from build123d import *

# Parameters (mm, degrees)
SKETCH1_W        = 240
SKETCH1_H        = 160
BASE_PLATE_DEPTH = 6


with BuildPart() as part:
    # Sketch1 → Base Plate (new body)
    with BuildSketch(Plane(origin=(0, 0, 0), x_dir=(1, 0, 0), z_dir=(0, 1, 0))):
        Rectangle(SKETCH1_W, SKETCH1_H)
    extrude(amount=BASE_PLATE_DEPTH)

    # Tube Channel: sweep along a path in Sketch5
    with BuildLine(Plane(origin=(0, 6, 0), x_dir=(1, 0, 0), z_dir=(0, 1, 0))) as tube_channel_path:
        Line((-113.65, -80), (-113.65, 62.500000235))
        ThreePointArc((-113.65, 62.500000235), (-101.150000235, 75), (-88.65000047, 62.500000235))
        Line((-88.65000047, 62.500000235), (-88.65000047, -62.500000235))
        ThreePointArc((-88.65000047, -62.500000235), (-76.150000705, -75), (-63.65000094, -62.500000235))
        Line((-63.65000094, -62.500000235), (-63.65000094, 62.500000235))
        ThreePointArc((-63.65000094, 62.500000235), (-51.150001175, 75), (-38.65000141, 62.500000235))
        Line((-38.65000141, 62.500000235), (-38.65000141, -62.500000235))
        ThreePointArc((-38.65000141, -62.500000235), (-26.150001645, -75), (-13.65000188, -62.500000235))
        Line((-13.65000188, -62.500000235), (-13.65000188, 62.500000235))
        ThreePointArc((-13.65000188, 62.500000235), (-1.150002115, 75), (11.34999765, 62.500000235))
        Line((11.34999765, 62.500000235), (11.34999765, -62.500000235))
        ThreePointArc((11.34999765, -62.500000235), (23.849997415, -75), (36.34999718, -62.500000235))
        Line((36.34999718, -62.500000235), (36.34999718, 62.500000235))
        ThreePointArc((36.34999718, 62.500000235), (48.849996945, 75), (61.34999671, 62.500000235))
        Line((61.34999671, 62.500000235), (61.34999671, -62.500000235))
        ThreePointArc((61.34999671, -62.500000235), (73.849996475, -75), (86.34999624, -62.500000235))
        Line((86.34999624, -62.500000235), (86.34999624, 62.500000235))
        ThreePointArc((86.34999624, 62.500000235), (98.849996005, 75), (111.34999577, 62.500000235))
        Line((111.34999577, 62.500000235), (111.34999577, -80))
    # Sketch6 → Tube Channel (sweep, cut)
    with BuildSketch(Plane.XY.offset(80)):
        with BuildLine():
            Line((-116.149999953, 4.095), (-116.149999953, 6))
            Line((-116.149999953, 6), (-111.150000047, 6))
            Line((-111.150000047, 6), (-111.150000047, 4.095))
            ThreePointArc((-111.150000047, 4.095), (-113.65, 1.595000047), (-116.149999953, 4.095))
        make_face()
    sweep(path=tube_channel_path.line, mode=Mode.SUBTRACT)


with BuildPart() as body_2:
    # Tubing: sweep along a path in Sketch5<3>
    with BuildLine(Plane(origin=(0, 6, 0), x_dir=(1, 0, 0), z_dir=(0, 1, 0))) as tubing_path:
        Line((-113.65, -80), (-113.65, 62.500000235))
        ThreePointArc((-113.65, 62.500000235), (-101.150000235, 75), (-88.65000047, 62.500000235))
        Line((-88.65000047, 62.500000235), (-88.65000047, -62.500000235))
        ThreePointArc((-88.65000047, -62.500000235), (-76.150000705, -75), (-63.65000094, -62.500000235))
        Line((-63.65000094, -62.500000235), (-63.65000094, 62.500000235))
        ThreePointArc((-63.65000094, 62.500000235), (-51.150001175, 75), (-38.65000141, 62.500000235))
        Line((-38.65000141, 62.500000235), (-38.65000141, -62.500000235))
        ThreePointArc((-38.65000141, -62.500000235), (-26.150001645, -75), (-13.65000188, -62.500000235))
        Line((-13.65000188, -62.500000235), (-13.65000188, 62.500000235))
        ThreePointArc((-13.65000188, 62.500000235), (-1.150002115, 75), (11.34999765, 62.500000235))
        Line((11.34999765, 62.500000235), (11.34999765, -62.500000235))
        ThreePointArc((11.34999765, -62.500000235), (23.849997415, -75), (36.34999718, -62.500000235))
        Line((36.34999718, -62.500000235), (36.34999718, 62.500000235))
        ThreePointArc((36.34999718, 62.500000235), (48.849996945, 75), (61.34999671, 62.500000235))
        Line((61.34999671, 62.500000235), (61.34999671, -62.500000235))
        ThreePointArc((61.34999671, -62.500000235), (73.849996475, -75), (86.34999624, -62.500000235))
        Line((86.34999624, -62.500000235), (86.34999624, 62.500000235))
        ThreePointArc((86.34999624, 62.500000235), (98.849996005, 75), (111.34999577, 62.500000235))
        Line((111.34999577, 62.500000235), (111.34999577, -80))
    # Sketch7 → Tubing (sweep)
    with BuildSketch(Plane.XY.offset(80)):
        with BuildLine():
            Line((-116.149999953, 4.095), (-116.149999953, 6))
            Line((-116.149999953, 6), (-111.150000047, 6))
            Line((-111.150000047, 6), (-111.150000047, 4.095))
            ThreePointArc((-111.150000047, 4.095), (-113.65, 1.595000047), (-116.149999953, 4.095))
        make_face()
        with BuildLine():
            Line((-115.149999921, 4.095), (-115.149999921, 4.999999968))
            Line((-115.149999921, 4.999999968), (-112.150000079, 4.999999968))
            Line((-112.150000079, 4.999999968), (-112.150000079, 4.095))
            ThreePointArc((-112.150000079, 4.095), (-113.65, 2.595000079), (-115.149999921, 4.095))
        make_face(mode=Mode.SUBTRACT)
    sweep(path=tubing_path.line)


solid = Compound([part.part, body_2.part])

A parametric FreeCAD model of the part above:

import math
import FreeCAD as App
import Part
import Sketcher

doc = App.newDocument("Part")
params = doc.addObject("Spreadsheet::Sheet", "Params")
for row, (alias, value) in enumerate([
    ("sketch1_width", "240 mm"),
    ("sketch1_height", "160 mm"),
    ("pad1_length", "6 mm"),
    ("sketch2_radius", "2.5 mm"),
    ("sketch3_radius", "12.5 mm"),
    ("sketch3_height", "125 mm"),
    ("sketch3_height2", "142.5 mm"),
    ("sketch4_radius", "2.5 mm"),
    ("sketch4_radius2", "1.5 mm"),
    ("sketch5_radius", "12.5 mm"),
    ("sketch5_height", "125 mm"),
    ("sketch5_height2", "142.5 mm"),
], start=1):
    params.set(f"A{row}", alias)
    params.set(f"B{row}", "=" + value)
    params.setAlias(f"B{row}", alias)

body = doc.addObject("PartDesign::Body", "Body")

# Sketch on XZ plane
sketch1 = doc.addObject("Sketcher::SketchObject", "Sketch")
body.addObject(sketch1)
sketch1.AttachmentSupport = (doc.XZ_Plane, [""])
sketch1.MapMode = "FlatFace"
sketch1.addGeometry(Part.LineSegment(App.Vector(-120, -80, 0), App.Vector(-120, 80, 0)), False)
sketch1.addGeometry(Part.LineSegment(App.Vector(-120, 80, 0), App.Vector(120, 80, 0)), False)
sketch1.addGeometry(Part.LineSegment(App.Vector(120, 80, 0), App.Vector(120, -80, 0)), False)
sketch1.addGeometry(Part.LineSegment(App.Vector(120, -80, 0), App.Vector(-120, -80, 0)), False)
sketch1.addConstraint(Sketcher.Constraint("Coincident", 0, 2, 1, 1))
sketch1.addConstraint(Sketcher.Constraint("Coincident", 1, 2, 2, 1))
sketch1.addConstraint(Sketcher.Constraint("Coincident", 2, 2, 3, 1))
sketch1.addConstraint(Sketcher.Constraint("Coincident", 3, 2, 0, 1))
sketch1.addConstraint(Sketcher.Constraint("Vertical", 0))
sketch1.addConstraint(Sketcher.Constraint("Horizontal", 1))
sketch1.addConstraint(Sketcher.Constraint("Vertical", 2))
sketch1.addConstraint(Sketcher.Constraint("Horizontal", 3))
sketch1.addConstraint(Sketcher.Constraint("Symmetric", 0, 2, 2, 2, -1, 1))
sketch1.addConstraint(Sketcher.Constraint("DistanceX", 1, 1, 1, 2, 240.0))
sketch1.addConstraint(Sketcher.Constraint("DistanceY", 0, 1, 0, 2, 160.0))
sketch1.setExpression("Constraints[9]", "Params.sketch1_width")
sketch1.setExpression("Constraints[10]", "Params.sketch1_height")
pad1 = doc.addObject("PartDesign::Pad", "Pad")
body.addObject(pad1)
pad1.Profile = sketch1
pad1.setExpression("Length", "Params.pad1_length")
pad1.Reversed = True

# Sketch on XY plane
sketch2 = doc.addObject("Sketcher::SketchObject", "Sketch001")
body.addObject(sketch2)
sketch2.AttachmentSupport = (doc.XY_Plane, [""])
sketch2.MapMode = "FlatFace"
sketch2.AttachmentOffset = App.Placement(App.Vector(0, 0, 80), App.Rotation())
sketch2.addGeometry(Part.LineSegment(App.Vector(-116.15, 6, 0), App.Vector(-116.15, 4.095, 0)), False)
sketch2.addGeometry(Part.ArcOfCircle(Part.Circle(App.Vector(-113.65, 4.095, 0), App.Vector(0, 0, 1), 2.5), math.radians(180), math.radians(360)), False)
sketch2.addGeometry(Part.LineSegment(App.Vector(-111.15, 4.095, 0), App.Vector(-111.15, 6, 0)), False)
sketch2.addGeometry(Part.LineSegment(App.Vector(-111.15, 6, 0), App.Vector(-116.15, 6, 0)), False)
sketch2.addConstraint(Sketcher.Constraint("Tangent", 0, 2, 1, 1))
sketch2.addConstraint(Sketcher.Constraint("Tangent", 1, 2, 2, 1))
sketch2.addConstraint(Sketcher.Constraint("Coincident", 2, 2, 3, 1))
sketch2.addConstraint(Sketcher.Constraint("Coincident", 3, 2, 0, 1))
sketch2.addConstraint(Sketcher.Constraint("Vertical", 0))
sketch2.addConstraint(Sketcher.Constraint("Vertical", 2))
sketch2.addConstraint(Sketcher.Constraint("Horizontal", 3))
sketch2.addConstraint(Sketcher.Constraint("Radius", 1, 2.5))
sketch2.addConstraint(Sketcher.Constraint("DistanceY", -1, 1, 2, 2, 6.0))
sketch2.addConstraint(Sketcher.Constraint("DistanceY", 0, 2, 0, 1, 1.905))
sketch2.addConstraint(Sketcher.Constraint("DistanceX", 1, 3, -1, 1, 113.65))
sketch2.setExpression("Constraints[7]", "Params.sketch2_radius")

# Sketch on XZ plane
sketch3 = doc.addObject("Sketcher::SketchObject", "Sketch002")
body.addObject(sketch3)
sketch3.AttachmentSupport = (doc.XZ_Plane, [""])
sketch3.MapMode = "FlatFace"
sketch3.AttachmentOffset = App.Placement(App.Vector(0, 0, -6), App.Rotation())
sketch3.addGeometry(Part.LineSegment(App.Vector(-113.65, 80, 0), App.Vector(-113.65, -62.5, 0)), False)
sketch3.addGeometry(Part.ArcOfCircle(Part.Circle(App.Vector(-101.15, -62.5, 0), App.Vector(0, 0, 1), 12.5), math.radians(180), math.radians(360)), False)
sketch3.addGeometry(Part.LineSegment(App.Vector(-88.65, -62.5, 0), App.Vector(-88.65, 62.5, 0)), False)
sketch3.addGeometry(Part.ArcOfCircle(Part.Circle(App.Vector(-76.150001, 62.5, 0), App.Vector(0, 0, 1), 12.5), math.radians(0), math.radians(180)), False)
sketch3.addGeometry(Part.LineSegment(App.Vector(-63.650001, 62.5, 0), App.Vector(-63.650001, -62.5, 0)), False)
sketch3.addGeometry(Part.ArcOfCircle(Part.Circle(App.Vector(-51.150001, -62.5, 0), App.Vector(0, 0, 1), 12.5), math.radians(180), math.radians(360)), False)
sketch3.addGeometry(Part.LineSegment(App.Vector(-38.650001, -62.5, 0), App.Vector(-38.650001, 62.5, 0)), False)
sketch3.addGeometry(Part.ArcOfCircle(Part.Circle(App.Vector(-26.150002, 62.5, 0), App.Vector(0, 0, 1), 12.5), math.radians(0), math.radians(180)), False)
sketch3.addGeometry(Part.LineSegment(App.Vector(-13.650002, 62.5, 0), App.Vector(-13.650002, -62.5, 0)), False)
sketch3.addGeometry(Part.ArcOfCircle(Part.Circle(App.Vector(-1.150002, -62.5, 0), App.Vector(0, 0, 1), 12.5), math.radians(180), math.radians(360)), False)
sketch3.addGeometry(Part.LineSegment(App.Vector(11.349998, -62.5, 0), App.Vector(11.349998, 62.5, 0)), False)
sketch3.addGeometry(Part.ArcOfCircle(Part.Circle(App.Vector(23.849997, 62.5, 0), App.Vector(0, 0, 1), 12.5), math.radians(0), math.radians(180)), False)
sketch3.addGeometry(Part.LineSegment(App.Vector(36.349997, 62.5, 0), App.Vector(36.349997, -62.5, 0)), False)
sketch3.addGeometry(Part.ArcOfCircle(Part.Circle(App.Vector(48.849997, -62.5, 0), App.Vector(0, 0, 1), 12.5), math.radians(180), math.radians(360)), False)
sketch3.addGeometry(Part.LineSegment(App.Vector(61.349997, -62.5, 0), App.Vector(61.349997, 62.5, 0)), False)
sketch3.addGeometry(Part.ArcOfCircle(Part.Circle(App.Vector(73.849996, 62.5, 0), App.Vector(0, 0, 1), 12.5), math.radians(0), math.radians(180)), False)
sketch3.addGeometry(Part.LineSegment(App.Vector(86.349996, 62.5, 0), App.Vector(86.349996, -62.5, 0)), False)
sketch3.addGeometry(Part.ArcOfCircle(Part.Circle(App.Vector(98.849996, -62.5, 0), App.Vector(0, 0, 1), 12.5), math.radians(180), math.radians(360)), False)
sketch3.addGeometry(Part.LineSegment(App.Vector(111.349996, -62.5, 0), App.Vector(111.349996, 80, 0)), False)
sketch3.addConstraint(Sketcher.Constraint("Tangent", 0, 2, 1, 1))
sketch3.addConstraint(Sketcher.Constraint("Tangent", 1, 2, 2, 1))
sketch3.addConstraint(Sketcher.Constraint("Tangent", 2, 2, 3, 2))
sketch3.addConstraint(Sketcher.Constraint("Tangent", 3, 1, 4, 1))
sketch3.addConstraint(Sketcher.Constraint("Tangent", 4, 2, 5, 1))
sketch3.addConstraint(Sketcher.Constraint("Tangent", 5, 2, 6, 1))
sketch3.addConstraint(Sketcher.Constraint("Tangent", 6, 2, 7, 2))
sketch3.addConstraint(Sketcher.Constraint("Tangent", 7, 1, 8, 1))
sketch3.addConstraint(Sketcher.Constraint("Tangent", 8, 2, 9, 1))
sketch3.addConstraint(Sketcher.Constraint("Tangent", 9, 2, 10, 1))
sketch3.addConstraint(Sketcher.Constraint("Tangent", 10, 2, 11, 2))
sketch3.addConstraint(Sketcher.Constraint("Tangent", 11, 1, 12, 1))
sketch3.addConstraint(Sketcher.Constraint("Tangent", 12, 2, 13, 1))
sketch3.addConstraint(Sketcher.Constraint("Tangent", 13, 2, 14, 1))
sketch3.addConstraint(Sketcher.Constraint("Tangent", 14, 2, 15, 2))
sketch3.addConstraint(Sketcher.Constraint("Tangent", 15, 1, 16, 1))
sketch3.addConstraint(Sketcher.Constraint("Tangent", 16, 2, 17, 1))
sketch3.addConstraint(Sketcher.Constraint("Tangent", 17, 2, 18, 1))
sketch3.addConstraint(Sketcher.Constraint("Vertical", 0))
sketch3.addConstraint(Sketcher.Constraint("Vertical", 2))
sketch3.addConstraint(Sketcher.Constraint("Vertical", 4))
sketch3.addConstraint(Sketcher.Constraint("Vertical", 6))
sketch3.addConstraint(Sketcher.Constraint("Vertical", 8))
sketch3.addConstraint(Sketcher.Constraint("Vertical", 10))
sketch3.addConstraint(Sketcher.Constraint("Vertical", 12))
sketch3.addConstraint(Sketcher.Constraint("Vertical", 14))
sketch3.addConstraint(Sketcher.Constraint("Vertical", 16))
sketch3.addConstraint(Sketcher.Constraint("Vertical", 18))
sketch3.addConstraint(Sketcher.Constraint("Equal", 1, 3))
sketch3.addConstraint(Sketcher.Constraint("Equal", 3, 5))
sketch3.addConstraint(Sketcher.Constraint("Equal", 5, 7))
sketch3.addConstraint(Sketcher.Constraint("Equal", 7, 9))
sketch3.addConstraint(Sketcher.Constraint("Equal", 9, 11))
sketch3.addConstraint(Sketcher.Constraint("Equal", 11, 13))
sketch3.addConstraint(Sketcher.Constraint("Equal", 13, 15))
sketch3.addConstraint(Sketcher.Constraint("Equal", 15, 17))
sketch3.addConstraint(Sketcher.Constraint("Horizontal", 1, 3, 5, 3))
sketch3.addConstraint(Sketcher.Constraint("Horizontal", 3, 3, 7, 3))
sketch3.addConstraint(Sketcher.Constraint("Horizontal", 5, 3, 9, 3))
sketch3.addConstraint(Sketcher.Constraint("Horizontal", 7, 3, 11, 3))
sketch3.addConstraint(Sketcher.Constraint("Horizontal", 9, 3, 13, 3))
sketch3.addConstraint(Sketcher.Constraint("Horizontal", 11, 3, 15, 3))
sketch3.addConstraint(Sketcher.Constraint("Horizontal", 13, 3, 17, 3))
sketch3.addConstraint(Sketcher.Constraint("Horizontal", 0, 1, 18, 2))
sketch3.addConstraint(Sketcher.Constraint("Radius", 1, 12.5))
sketch3.addConstraint(Sketcher.Constraint("DistanceY", 2, 1, 2, 2, 125.0))
sketch3.addConstraint(Sketcher.Constraint("DistanceY", 0, 2, 0, 1, 142.5))
sketch3.addConstraint(Sketcher.Constraint("DistanceY", -1, 1, 0, 1, 80.0))
sketch3.addConstraint(Sketcher.Constraint("DistanceX", 1, 3, -1, 1, 101.15))
sketch3.setExpression("Constraints[44]", "Params.sketch3_radius")
sketch3.setExpression("Constraints[45]", "Params.sketch3_height")
sketch3.setExpression("Constraints[46]", "Params.sketch3_height2")
doc.recompute()

subtractivepipe = doc.addObject("PartDesign::SubtractivePipe", "SubtractivePipe")
body.addObject(subtractivepipe)
subtractivepipe.Profile = sketch2
subtractivepipe.Spine = (sketch3, ["Edge1", "Edge2", "Edge3", "Edge4", "Edge5", "Edge6", "Edge7", "Edge8", "Edge9", "Edge10", "Edge11", "Edge12", "Edge13", "Edge14", "Edge15", "Edge16", "Edge17", "Edge18", "Edge19"])
body2 = doc.addObject("PartDesign::Body", "Body001")

# Sketch on XY plane
sketch4 = doc.addObject("Sketcher::SketchObject", "Sketch003")
body2.addObject(sketch4)
sketch4.AttachmentSupport = (doc.getObject("XY_Plane001"), [""])
sketch4.MapMode = "FlatFace"
sketch4.AttachmentOffset = App.Placement(App.Vector(0, 0, 80), App.Rotation())
sketch4.addGeometry(Part.LineSegment(App.Vector(-116.15, 6, 0), App.Vector(-116.15, 4.095, 0)), False)
sketch4.addGeometry(Part.ArcOfCircle(Part.Circle(App.Vector(-113.65, 4.095, 0), App.Vector(0, 0, 1), 2.5), math.radians(180), math.radians(360)), False)
sketch4.addGeometry(Part.LineSegment(App.Vector(-111.15, 4.095, 0), App.Vector(-111.15, 6, 0)), False)
sketch4.addGeometry(Part.LineSegment(App.Vector(-111.15, 6, 0), App.Vector(-116.15, 6, 0)), False)
sketch4.addGeometry(Part.LineSegment(App.Vector(-115.15, 4.095, 0), App.Vector(-115.15, 5, 0)), False)
sketch4.addGeometry(Part.LineSegment(App.Vector(-115.15, 5, 0), App.Vector(-112.15, 5, 0)), False)
sketch4.addGeometry(Part.LineSegment(App.Vector(-112.15, 5, 0), App.Vector(-112.15, 4.095, 0)), False)
sketch4.addGeometry(Part.ArcOfCircle(Part.Circle(App.Vector(-113.65, 4.095, 0), App.Vector(0, 0, 1), 1.5), math.radians(180), math.radians(360)), False)
sketch4.addConstraint(Sketcher.Constraint("Tangent", 0, 2, 1, 1))
sketch4.addConstraint(Sketcher.Constraint("Tangent", 1, 2, 2, 1))
sketch4.addConstraint(Sketcher.Constraint("Coincident", 2, 2, 3, 1))
sketch4.addConstraint(Sketcher.Constraint("Coincident", 3, 2, 0, 1))
sketch4.addConstraint(Sketcher.Constraint("Coincident", 4, 2, 5, 1))
sketch4.addConstraint(Sketcher.Constraint("Coincident", 5, 2, 6, 1))
sketch4.addConstraint(Sketcher.Constraint("Tangent", 6, 2, 7, 2))
sketch4.addConstraint(Sketcher.Constraint("Tangent", 7, 1, 4, 1))
sketch4.addConstraint(Sketcher.Constraint("Vertical", 0))
sketch4.addConstraint(Sketcher.Constraint("Vertical", 2))
sketch4.addConstraint(Sketcher.Constraint("Horizontal", 3))
sketch4.addConstraint(Sketcher.Constraint("Vertical", 4))
sketch4.addConstraint(Sketcher.Constraint("Horizontal", 5))
sketch4.addConstraint(Sketcher.Constraint("Vertical", 6))
sketch4.addConstraint(Sketcher.Constraint("Coincident", 7, 3, 1, 3))
sketch4.addConstraint(Sketcher.Constraint("Radius", 1, 2.5))
sketch4.addConstraint(Sketcher.Constraint("Radius", 7, 1.5))
sketch4.addConstraint(Sketcher.Constraint("DistanceY", -1, 1, 2, 2, 6.0))
sketch4.addConstraint(Sketcher.Constraint("DistanceY", -1, 1, 4, 2, 5.0))
sketch4.addConstraint(Sketcher.Constraint("DistanceY", 0, 2, 0, 1, 1.905))
sketch4.addConstraint(Sketcher.Constraint("DistanceX", 1, 3, -1, 1, 113.65))
sketch4.setExpression("Constraints[15]", "Params.sketch4_radius")
sketch4.setExpression("Constraints[16]", "Params.sketch4_radius2")

# Sketch on XZ plane
sketch5 = doc.addObject("Sketcher::SketchObject", "Sketch004")
body2.addObject(sketch5)
sketch5.AttachmentSupport = (doc.getObject("XZ_Plane001"), [""])
sketch5.MapMode = "FlatFace"
sketch5.AttachmentOffset = App.Placement(App.Vector(0, 0, -6), App.Rotation())
sketch5.addGeometry(Part.LineSegment(App.Vector(-113.65, 80, 0), App.Vector(-113.65, -62.5, 0)), False)
sketch5.addGeometry(Part.ArcOfCircle(Part.Circle(App.Vector(-101.15, -62.5, 0), App.Vector(0, 0, 1), 12.5), math.radians(180), math.radians(360)), False)
sketch5.addGeometry(Part.LineSegment(App.Vector(-88.65, -62.5, 0), App.Vector(-88.65, 62.5, 0)), False)
sketch5.addGeometry(Part.ArcOfCircle(Part.Circle(App.Vector(-76.150001, 62.5, 0), App.Vector(0, 0, 1), 12.5), math.radians(0), math.radians(180)), False)
sketch5.addGeometry(Part.LineSegment(App.Vector(-63.650001, 62.5, 0), App.Vector(-63.650001, -62.5, 0)), False)
sketch5.addGeometry(Part.ArcOfCircle(Part.Circle(App.Vector(-51.150001, -62.5, 0), App.Vector(0, 0, 1), 12.5), math.radians(180), math.radians(360)), False)
sketch5.addGeometry(Part.LineSegment(App.Vector(-38.650001, -62.5, 0), App.Vector(-38.650001, 62.5, 0)), False)
sketch5.addGeometry(Part.ArcOfCircle(Part.Circle(App.Vector(-26.150002, 62.5, 0), App.Vector(0, 0, 1), 12.5), math.radians(0), math.radians(180)), False)
sketch5.addGeometry(Part.LineSegment(App.Vector(-13.650002, 62.5, 0), App.Vector(-13.650002, -62.5, 0)), False)
sketch5.addGeometry(Part.ArcOfCircle(Part.Circle(App.Vector(-1.150002, -62.5, 0), App.Vector(0, 0, 1), 12.5), math.radians(180), math.radians(360)), False)
sketch5.addGeometry(Part.LineSegment(App.Vector(11.349998, -62.5, 0), App.Vector(11.349998, 62.5, 0)), False)
sketch5.addGeometry(Part.ArcOfCircle(Part.Circle(App.Vector(23.849997, 62.5, 0), App.Vector(0, 0, 1), 12.5), math.radians(0), math.radians(180)), False)
sketch5.addGeometry(Part.LineSegment(App.Vector(36.349997, 62.5, 0), App.Vector(36.349997, -62.5, 0)), False)
sketch5.addGeometry(Part.ArcOfCircle(Part.Circle(App.Vector(48.849997, -62.5, 0), App.Vector(0, 0, 1), 12.5), math.radians(180), math.radians(360)), False)
sketch5.addGeometry(Part.LineSegment(App.Vector(61.349997, -62.5, 0), App.Vector(61.349997, 62.5, 0)), False)
sketch5.addGeometry(Part.ArcOfCircle(Part.Circle(App.Vector(73.849996, 62.5, 0), App.Vector(0, 0, 1), 12.5), math.radians(0), math.radians(180)), False)
sketch5.addGeometry(Part.LineSegment(App.Vector(86.349996, 62.5, 0), App.Vector(86.349996, -62.5, 0)), False)
sketch5.addGeometry(Part.ArcOfCircle(Part.Circle(App.Vector(98.849996, -62.5, 0), App.Vector(0, 0, 1), 12.5), math.radians(180), math.radians(360)), False)
sketch5.addGeometry(Part.LineSegment(App.Vector(111.349996, -62.5, 0), App.Vector(111.349996, 80, 0)), False)
sketch5.addConstraint(Sketcher.Constraint("Tangent", 0, 2, 1, 1))
sketch5.addConstraint(Sketcher.Constraint("Tangent", 1, 2, 2, 1))
sketch5.addConstraint(Sketcher.Constraint("Tangent", 2, 2, 3, 2))
sketch5.addConstraint(Sketcher.Constraint("Tangent", 3, 1, 4, 1))
sketch5.addConstraint(Sketcher.Constraint("Tangent", 4, 2, 5, 1))
sketch5.addConstraint(Sketcher.Constraint("Tangent", 5, 2, 6, 1))
sketch5.addConstraint(Sketcher.Constraint("Tangent", 6, 2, 7, 2))
sketch5.addConstraint(Sketcher.Constraint("Tangent", 7, 1, 8, 1))
sketch5.addConstraint(Sketcher.Constraint("Tangent", 8, 2, 9, 1))
sketch5.addConstraint(Sketcher.Constraint("Tangent", 9, 2, 10, 1))
sketch5.addConstraint(Sketcher.Constraint("Tangent", 10, 2, 11, 2))
sketch5.addConstraint(Sketcher.Constraint("Tangent", 11, 1, 12, 1))
sketch5.addConstraint(Sketcher.Constraint("Tangent", 12, 2, 13, 1))
sketch5.addConstraint(Sketcher.Constraint("Tangent", 13, 2, 14, 1))
sketch5.addConstraint(Sketcher.Constraint("Tangent", 14, 2, 15, 2))
sketch5.addConstraint(Sketcher.Constraint("Tangent", 15, 1, 16, 1))
sketch5.addConstraint(Sketcher.Constraint("Tangent", 16, 2, 17, 1))
sketch5.addConstraint(Sketcher.Constraint("Tangent", 17, 2, 18, 1))
sketch5.addConstraint(Sketcher.Constraint("Vertical", 0))
sketch5.addConstraint(Sketcher.Constraint("Vertical", 2))
sketch5.addConstraint(Sketcher.Constraint("Vertical", 4))
sketch5.addConstraint(Sketcher.Constraint("Vertical", 6))
sketch5.addConstraint(Sketcher.Constraint("Vertical", 8))
sketch5.addConstraint(Sketcher.Constraint("Vertical", 10))
sketch5.addConstraint(Sketcher.Constraint("Vertical", 12))
sketch5.addConstraint(Sketcher.Constraint("Vertical", 14))
sketch5.addConstraint(Sketcher.Constraint("Vertical", 16))
sketch5.addConstraint(Sketcher.Constraint("Vertical", 18))
sketch5.addConstraint(Sketcher.Constraint("Equal", 1, 3))
sketch5.addConstraint(Sketcher.Constraint("Equal", 3, 5))
sketch5.addConstraint(Sketcher.Constraint("Equal", 5, 7))
sketch5.addConstraint(Sketcher.Constraint("Equal", 7, 9))
sketch5.addConstraint(Sketcher.Constraint("Equal", 9, 11))
sketch5.addConstraint(Sketcher.Constraint("Equal", 11, 13))
sketch5.addConstraint(Sketcher.Constraint("Equal", 13, 15))
sketch5.addConstraint(Sketcher.Constraint("Equal", 15, 17))
sketch5.addConstraint(Sketcher.Constraint("Horizontal", 1, 3, 5, 3))
sketch5.addConstraint(Sketcher.Constraint("Horizontal", 3, 3, 7, 3))
sketch5.addConstraint(Sketcher.Constraint("Horizontal", 5, 3, 9, 3))
sketch5.addConstraint(Sketcher.Constraint("Horizontal", 7, 3, 11, 3))
sketch5.addConstraint(Sketcher.Constraint("Horizontal", 9, 3, 13, 3))
sketch5.addConstraint(Sketcher.Constraint("Horizontal", 11, 3, 15, 3))
sketch5.addConstraint(Sketcher.Constraint("Horizontal", 13, 3, 17, 3))
sketch5.addConstraint(Sketcher.Constraint("Horizontal", 0, 1, 18, 2))
sketch5.addConstraint(Sketcher.Constraint("Radius", 1, 12.5))
sketch5.addConstraint(Sketcher.Constraint("DistanceY", 2, 1, 2, 2, 125.0))
sketch5.addConstraint(Sketcher.Constraint("DistanceY", 0, 2, 0, 1, 142.5))
sketch5.addConstraint(Sketcher.Constraint("DistanceY", -1, 1, 0, 1, 80.0))
sketch5.addConstraint(Sketcher.Constraint("DistanceX", 1, 3, -1, 1, 101.15))
sketch5.setExpression("Constraints[44]", "Params.sketch5_radius")
sketch5.setExpression("Constraints[45]", "Params.sketch5_height")
sketch5.setExpression("Constraints[46]", "Params.sketch5_height2")
doc.recompute()

additivepipe = doc.addObject("PartDesign::AdditivePipe", "AdditivePipe")
body2.addObject(additivepipe)
additivepipe.Profile = sketch4
additivepipe.Spine = (sketch5, ["Edge1", "Edge2", "Edge3", "Edge4", "Edge5", "Edge6", "Edge7", "Edge8", "Edge9", "Edge10", "Edge11", "Edge12", "Edge13", "Edge14", "Edge15", "Edge16", "Edge17", "Edge18", "Edge19"])

doc.recompute()
